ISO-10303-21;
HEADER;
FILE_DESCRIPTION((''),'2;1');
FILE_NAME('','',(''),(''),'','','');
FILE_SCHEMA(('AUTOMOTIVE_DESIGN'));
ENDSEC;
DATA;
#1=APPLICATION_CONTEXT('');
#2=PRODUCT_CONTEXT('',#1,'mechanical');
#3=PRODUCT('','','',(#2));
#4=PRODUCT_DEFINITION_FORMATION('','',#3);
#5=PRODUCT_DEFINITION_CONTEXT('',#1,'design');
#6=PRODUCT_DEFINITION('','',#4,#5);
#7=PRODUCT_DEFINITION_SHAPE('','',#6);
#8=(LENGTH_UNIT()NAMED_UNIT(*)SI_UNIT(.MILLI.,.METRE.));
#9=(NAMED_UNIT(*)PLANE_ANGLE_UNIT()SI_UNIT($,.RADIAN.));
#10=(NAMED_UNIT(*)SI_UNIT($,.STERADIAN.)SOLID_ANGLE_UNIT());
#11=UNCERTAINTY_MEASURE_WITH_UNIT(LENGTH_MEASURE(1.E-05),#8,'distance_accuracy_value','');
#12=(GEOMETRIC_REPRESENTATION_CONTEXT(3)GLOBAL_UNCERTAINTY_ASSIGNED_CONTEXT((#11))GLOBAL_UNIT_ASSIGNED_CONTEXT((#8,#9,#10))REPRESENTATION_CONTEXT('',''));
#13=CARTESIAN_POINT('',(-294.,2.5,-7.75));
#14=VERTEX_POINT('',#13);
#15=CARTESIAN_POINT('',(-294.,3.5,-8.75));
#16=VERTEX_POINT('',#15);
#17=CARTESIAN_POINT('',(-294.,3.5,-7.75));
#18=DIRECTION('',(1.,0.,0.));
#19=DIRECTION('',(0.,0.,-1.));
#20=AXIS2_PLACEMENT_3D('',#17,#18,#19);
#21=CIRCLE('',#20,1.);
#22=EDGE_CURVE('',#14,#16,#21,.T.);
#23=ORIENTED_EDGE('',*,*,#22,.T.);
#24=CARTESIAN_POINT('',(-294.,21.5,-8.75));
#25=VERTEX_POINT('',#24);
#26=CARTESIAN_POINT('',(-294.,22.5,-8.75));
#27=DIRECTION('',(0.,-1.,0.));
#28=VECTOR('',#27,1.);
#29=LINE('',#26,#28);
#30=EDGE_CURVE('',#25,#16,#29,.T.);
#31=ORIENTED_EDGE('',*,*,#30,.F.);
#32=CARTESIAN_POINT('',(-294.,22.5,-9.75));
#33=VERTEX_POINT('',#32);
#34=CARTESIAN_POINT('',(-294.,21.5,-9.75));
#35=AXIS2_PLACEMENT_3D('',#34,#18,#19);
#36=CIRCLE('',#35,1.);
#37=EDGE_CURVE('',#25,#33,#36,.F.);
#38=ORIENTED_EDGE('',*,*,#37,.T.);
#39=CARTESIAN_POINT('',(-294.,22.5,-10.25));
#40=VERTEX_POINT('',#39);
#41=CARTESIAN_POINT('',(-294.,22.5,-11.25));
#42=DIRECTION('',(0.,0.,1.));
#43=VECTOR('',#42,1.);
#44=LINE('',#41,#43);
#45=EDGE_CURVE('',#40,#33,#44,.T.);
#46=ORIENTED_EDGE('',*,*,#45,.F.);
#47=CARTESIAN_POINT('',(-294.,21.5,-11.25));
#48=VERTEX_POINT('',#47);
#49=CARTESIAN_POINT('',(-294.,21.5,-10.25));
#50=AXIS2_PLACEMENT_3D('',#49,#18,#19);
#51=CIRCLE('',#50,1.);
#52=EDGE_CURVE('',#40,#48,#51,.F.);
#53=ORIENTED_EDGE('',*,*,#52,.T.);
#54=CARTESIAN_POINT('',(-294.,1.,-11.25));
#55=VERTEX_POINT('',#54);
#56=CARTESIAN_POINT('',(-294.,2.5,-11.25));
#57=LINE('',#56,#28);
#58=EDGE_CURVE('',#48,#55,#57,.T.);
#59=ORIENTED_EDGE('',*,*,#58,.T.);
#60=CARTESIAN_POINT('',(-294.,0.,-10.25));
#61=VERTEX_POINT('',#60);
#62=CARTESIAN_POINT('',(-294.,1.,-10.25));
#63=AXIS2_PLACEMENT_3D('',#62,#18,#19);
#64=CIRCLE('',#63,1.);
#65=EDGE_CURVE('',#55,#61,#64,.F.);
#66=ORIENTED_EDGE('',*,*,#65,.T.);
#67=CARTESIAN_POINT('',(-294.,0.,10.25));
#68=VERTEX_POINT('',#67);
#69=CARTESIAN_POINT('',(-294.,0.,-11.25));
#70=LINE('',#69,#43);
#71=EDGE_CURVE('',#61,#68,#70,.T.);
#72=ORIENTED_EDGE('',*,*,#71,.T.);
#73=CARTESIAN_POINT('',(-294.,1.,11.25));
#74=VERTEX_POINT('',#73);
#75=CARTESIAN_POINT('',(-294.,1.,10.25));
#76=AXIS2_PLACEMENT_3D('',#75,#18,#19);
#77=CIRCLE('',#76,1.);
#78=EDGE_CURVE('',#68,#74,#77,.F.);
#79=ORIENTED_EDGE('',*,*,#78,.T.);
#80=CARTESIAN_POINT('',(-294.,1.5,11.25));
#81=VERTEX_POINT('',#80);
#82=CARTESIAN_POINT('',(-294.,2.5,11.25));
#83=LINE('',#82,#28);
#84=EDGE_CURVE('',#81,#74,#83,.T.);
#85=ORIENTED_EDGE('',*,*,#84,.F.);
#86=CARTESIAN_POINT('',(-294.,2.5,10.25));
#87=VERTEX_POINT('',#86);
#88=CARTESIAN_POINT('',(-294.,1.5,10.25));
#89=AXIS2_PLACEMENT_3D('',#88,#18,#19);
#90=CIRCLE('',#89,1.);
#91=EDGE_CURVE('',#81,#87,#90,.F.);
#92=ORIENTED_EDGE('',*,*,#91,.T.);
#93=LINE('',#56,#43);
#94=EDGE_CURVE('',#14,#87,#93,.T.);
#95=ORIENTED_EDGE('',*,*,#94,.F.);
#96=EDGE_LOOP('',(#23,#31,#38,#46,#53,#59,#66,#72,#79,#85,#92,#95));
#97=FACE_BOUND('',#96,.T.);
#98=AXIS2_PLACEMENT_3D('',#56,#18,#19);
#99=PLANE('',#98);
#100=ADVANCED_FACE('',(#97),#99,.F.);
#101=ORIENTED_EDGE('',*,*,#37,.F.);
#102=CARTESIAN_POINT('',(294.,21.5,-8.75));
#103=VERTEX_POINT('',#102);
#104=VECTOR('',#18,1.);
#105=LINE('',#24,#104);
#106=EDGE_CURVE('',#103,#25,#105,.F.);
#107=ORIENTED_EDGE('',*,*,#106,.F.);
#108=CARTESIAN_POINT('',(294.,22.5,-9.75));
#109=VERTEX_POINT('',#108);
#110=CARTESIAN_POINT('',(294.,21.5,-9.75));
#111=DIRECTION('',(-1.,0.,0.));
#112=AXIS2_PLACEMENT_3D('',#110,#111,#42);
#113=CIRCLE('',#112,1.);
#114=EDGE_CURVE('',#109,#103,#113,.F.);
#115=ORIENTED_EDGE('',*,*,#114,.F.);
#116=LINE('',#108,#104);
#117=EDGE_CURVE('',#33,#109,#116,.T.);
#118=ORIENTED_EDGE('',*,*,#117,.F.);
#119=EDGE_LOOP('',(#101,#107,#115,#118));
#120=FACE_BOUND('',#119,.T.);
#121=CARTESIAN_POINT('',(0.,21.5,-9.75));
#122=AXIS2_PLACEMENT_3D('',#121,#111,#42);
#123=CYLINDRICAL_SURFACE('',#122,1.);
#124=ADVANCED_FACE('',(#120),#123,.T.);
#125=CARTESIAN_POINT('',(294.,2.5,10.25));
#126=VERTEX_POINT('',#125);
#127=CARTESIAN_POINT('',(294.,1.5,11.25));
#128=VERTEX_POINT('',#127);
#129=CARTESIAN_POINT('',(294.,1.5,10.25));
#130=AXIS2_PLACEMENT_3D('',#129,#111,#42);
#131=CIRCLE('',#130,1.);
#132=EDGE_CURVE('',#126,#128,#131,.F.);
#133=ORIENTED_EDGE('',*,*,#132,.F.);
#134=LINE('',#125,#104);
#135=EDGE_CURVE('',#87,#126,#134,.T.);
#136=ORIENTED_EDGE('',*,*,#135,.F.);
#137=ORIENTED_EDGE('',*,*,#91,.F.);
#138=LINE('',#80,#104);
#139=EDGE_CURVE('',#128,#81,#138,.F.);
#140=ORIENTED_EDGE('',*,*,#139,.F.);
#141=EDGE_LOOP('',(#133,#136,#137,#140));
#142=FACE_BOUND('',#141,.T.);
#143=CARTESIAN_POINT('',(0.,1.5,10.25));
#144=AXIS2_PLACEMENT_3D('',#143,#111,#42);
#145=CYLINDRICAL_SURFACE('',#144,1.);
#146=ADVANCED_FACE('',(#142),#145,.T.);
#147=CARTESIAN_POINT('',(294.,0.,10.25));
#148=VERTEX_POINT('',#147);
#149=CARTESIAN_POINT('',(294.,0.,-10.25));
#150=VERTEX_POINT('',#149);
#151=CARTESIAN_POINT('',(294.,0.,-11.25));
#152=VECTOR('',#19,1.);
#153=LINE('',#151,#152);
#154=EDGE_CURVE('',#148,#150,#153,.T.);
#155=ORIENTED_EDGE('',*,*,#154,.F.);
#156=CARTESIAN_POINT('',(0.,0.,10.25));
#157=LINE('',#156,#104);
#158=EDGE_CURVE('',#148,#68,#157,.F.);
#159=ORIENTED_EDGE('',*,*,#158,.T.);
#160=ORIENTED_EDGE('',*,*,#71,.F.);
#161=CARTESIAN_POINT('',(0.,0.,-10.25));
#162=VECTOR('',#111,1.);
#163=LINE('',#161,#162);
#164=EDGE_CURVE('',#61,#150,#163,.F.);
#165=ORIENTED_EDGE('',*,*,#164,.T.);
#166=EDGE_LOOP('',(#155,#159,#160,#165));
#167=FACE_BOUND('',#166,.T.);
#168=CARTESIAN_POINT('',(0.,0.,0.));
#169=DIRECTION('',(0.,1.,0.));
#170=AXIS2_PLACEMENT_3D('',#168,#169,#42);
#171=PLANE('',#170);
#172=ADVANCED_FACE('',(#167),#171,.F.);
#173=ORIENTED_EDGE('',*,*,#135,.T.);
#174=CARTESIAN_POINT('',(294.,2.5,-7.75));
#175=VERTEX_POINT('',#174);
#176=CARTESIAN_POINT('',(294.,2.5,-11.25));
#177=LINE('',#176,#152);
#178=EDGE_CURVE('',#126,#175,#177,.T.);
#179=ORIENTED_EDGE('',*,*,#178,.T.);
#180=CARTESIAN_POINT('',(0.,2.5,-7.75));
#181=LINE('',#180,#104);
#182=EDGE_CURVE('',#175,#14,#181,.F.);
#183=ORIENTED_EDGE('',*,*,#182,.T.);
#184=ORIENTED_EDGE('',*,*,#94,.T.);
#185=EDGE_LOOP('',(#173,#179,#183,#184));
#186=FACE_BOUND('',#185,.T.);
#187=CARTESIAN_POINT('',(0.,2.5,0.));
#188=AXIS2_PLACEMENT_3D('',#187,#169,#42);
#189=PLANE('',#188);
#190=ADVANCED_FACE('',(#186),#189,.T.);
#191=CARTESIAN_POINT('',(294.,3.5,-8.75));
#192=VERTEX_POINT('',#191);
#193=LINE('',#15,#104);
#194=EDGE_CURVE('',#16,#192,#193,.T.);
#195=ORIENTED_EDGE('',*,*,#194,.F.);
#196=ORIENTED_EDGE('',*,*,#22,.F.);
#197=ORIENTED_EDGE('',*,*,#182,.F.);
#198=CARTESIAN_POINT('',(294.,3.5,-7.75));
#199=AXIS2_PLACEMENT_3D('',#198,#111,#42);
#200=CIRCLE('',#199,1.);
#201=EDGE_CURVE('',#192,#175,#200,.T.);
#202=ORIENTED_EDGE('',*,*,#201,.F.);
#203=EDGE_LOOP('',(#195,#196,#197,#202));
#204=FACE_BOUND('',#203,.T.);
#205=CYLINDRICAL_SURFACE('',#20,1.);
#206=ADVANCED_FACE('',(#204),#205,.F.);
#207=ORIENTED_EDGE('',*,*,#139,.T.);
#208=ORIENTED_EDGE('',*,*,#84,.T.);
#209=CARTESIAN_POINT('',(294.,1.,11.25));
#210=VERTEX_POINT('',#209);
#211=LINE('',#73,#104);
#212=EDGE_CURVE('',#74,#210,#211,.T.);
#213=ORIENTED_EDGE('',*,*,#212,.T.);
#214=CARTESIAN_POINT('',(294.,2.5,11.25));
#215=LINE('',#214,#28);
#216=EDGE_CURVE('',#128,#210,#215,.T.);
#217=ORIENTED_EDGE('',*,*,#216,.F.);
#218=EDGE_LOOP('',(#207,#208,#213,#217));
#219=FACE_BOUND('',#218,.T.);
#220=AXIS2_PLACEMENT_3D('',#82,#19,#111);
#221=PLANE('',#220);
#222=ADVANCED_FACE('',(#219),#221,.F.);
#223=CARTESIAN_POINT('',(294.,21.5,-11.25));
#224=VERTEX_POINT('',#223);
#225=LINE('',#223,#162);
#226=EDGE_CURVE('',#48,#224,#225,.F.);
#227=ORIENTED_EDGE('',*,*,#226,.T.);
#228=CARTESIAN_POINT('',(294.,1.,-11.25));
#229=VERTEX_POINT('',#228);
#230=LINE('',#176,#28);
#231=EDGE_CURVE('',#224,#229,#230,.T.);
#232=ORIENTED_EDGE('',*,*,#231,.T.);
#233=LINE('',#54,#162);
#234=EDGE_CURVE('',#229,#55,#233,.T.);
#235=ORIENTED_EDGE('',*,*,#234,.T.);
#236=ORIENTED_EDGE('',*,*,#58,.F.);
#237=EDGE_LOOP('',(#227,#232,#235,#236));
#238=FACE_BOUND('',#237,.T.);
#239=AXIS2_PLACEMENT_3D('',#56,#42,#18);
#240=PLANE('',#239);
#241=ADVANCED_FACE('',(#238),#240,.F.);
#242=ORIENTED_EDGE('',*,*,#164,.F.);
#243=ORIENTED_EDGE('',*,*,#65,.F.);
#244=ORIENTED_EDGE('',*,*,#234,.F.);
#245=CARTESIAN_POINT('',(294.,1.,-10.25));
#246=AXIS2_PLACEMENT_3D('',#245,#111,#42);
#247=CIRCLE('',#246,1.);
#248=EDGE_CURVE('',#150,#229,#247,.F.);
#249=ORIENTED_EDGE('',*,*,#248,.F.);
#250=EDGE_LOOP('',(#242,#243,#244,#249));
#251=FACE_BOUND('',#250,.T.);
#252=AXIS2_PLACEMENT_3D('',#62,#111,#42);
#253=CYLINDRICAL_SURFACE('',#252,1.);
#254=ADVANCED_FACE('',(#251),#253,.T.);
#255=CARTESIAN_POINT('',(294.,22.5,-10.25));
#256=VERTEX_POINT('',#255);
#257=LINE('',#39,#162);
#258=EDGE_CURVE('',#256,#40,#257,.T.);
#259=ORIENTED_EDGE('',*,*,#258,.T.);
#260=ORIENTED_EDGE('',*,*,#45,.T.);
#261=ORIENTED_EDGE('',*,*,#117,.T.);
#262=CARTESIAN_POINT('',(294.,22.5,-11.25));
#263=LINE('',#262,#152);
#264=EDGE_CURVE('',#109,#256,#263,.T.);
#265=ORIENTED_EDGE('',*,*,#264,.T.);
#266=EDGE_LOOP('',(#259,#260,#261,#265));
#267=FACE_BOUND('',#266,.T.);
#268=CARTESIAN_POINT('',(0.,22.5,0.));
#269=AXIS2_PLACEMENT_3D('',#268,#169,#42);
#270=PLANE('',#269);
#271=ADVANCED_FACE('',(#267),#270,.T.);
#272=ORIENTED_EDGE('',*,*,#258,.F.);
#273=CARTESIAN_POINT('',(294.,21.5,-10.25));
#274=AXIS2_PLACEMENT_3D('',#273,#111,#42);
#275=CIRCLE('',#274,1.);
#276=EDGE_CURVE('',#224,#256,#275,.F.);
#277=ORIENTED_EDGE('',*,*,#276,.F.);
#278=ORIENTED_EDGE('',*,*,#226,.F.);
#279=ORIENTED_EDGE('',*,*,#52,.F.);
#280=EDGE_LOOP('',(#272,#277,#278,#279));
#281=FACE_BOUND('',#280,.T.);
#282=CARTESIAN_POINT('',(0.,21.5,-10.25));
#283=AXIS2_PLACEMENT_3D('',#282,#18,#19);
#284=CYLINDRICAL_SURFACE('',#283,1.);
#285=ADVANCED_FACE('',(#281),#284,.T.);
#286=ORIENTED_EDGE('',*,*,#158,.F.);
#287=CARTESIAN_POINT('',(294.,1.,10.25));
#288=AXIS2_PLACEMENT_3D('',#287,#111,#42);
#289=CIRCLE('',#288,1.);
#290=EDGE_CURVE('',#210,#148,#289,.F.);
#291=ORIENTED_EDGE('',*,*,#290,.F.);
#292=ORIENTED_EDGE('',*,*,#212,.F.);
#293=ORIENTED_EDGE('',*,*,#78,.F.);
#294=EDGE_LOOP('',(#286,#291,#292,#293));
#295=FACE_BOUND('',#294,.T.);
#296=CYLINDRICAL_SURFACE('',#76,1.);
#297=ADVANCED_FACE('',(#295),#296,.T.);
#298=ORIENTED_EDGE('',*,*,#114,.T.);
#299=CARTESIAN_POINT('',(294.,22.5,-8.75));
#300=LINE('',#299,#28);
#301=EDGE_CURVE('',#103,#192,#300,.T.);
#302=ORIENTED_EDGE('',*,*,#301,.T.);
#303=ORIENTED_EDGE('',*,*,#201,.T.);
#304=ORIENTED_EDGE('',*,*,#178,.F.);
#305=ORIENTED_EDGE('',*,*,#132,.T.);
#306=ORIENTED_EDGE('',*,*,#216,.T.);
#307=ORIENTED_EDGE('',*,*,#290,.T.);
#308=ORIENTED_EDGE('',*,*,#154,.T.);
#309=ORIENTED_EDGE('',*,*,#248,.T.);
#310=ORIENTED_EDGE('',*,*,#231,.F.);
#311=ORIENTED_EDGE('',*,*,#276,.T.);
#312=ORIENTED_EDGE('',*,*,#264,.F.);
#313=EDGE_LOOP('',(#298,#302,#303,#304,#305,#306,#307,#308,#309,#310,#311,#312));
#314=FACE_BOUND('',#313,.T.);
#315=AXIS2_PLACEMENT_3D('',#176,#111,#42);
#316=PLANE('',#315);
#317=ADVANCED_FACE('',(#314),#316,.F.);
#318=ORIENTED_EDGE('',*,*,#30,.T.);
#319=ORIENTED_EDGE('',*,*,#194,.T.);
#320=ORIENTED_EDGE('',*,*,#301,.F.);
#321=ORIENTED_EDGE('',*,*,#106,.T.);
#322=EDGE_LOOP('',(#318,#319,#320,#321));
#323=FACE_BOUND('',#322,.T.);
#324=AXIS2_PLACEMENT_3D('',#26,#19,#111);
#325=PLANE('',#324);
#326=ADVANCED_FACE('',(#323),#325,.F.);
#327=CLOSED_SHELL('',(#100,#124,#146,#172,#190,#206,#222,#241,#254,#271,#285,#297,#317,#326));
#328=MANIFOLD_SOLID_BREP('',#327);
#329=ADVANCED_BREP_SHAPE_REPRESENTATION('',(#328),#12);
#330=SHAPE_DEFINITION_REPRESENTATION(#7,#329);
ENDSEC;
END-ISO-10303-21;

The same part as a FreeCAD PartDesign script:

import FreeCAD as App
import Part
import Sketcher
Q = App.Units.Quantity


def edges_at(feature, points):
    """Names of the edges that pass closest to the given points."""
    edges = feature.Shape.Edges
    near = lambda p: min(range(len(edges)), key=lambda i: edges[i].distToShape(Part.Vertex(*p))[0])
    return sorted({f"Edge{near(p) + 1}" for p in points})

doc = App.newDocument("Part")
body = doc.addObject("PartDesign::Body", "Body")

sketch1 = body.newObject("Sketcher::SketchObject", "Sketch")
sketch1.AttachmentSupport = (doc.getObject("XZ_Plane"), [""])
sketch1.MapMode = "FlatFace"
sketch1.addGeometry(Part.LineSegment(App.Vector(-294, -11, 0), App.Vector(-294, 11, 0)), False)
sketch1.addGeometry(Part.LineSegment(App.Vector(-294, 11, 0), App.Vector(294, 11, 0)), False)
sketch1.addGeometry(Part.LineSegment(App.Vector(294, 11, 0), App.Vector(294, -11, 0)), False)
sketch1.addGeometry(Part.LineSegment(App.Vector(294, -11, 0), App.Vector(-294, -11, 0)), False)
sketch1.addConstraint(Sketcher.Constraint("Coincident", 0, 2, 1, 1))
sketch1.addConstraint(Sketcher.Constraint("Coincident", 1, 2, 2, 1))
sketch1.addConstraint(Sketcher.Constraint("Coincident", 2, 2, 3, 1))
sketch1.addConstraint(Sketcher.Constraint("Coincident", 3, 2, 0, 1))
sketch1.addConstraint(Sketcher.Constraint("Vertical", 0))
sketch1.addConstraint(Sketcher.Constraint("Horizontal", 1))
sketch1.addConstraint(Sketcher.Constraint("Vertical", 2))
sketch1.addConstraint(Sketcher.Constraint("Horizontal", 3))
sketch1.addConstraint(Sketcher.Constraint("Symmetric", 0, 2, 2, 2, -1, 1))
sketch1.addConstraint(Sketcher.Constraint("DistanceX", 1, 1, 1, 2, Q("588 mm")))
sketch1.addConstraint(Sketcher.Constraint("DistanceY", 0, 1, 0, 2, Q("22.5 mm")))
pad1 = body.newObject("PartDesign::Pad", "Pad")
pad1.Profile = sketch1
pad1.Length = 2.5
pad1.Reversed = True

sketch2 = body.newObject("Sketcher::SketchObject", "Sketch001")
sketch2.AttachmentSupport = (doc.getObject("XZ_Plane"), [""])
sketch2.MapMode = "FlatFace"
sketch2.AttachmentOffset = App.Placement(App.Vector(0, 0, -2.5), App.Rotation())
sketch2.addGeometry(Part.LineSegment(App.Vector(-294, -11.2, 0), App.Vector(-294, -8.8, 0)), False)
sketch2.addGeometry(Part.LineSegment(App.Vector(-294, -8.8, 0), App.Vector(294, -8.8, 0)), False)
sketch2.addGeometry(Part.LineSegment(App.Vector(294, -8.8, 0), App.Vector(294, -11.2, 0)), False)
sketch2.addGeometry(Part.LineSegment(App.Vector(294, -11.2, 0), App.Vector(-294, -11.2, 0)), False)
sketch2.addConstraint(Sketcher.Constraint("Coincident", 0, 2, 1, 1))
sketch2.addConstraint(Sketcher.Constraint("Coincident", 1, 2, 2, 1))
sketch2.addConstraint(Sketcher.Constraint("Coincident", 2, 2, 3, 1))
sketch2.addConstraint(Sketcher.Constraint("Coincident", 3, 2, 0, 1))
sketch2.addConstraint(Sketcher.Constraint("Vertical", 0))
sketch2.addConstraint(Sketcher.Constraint("Horizontal", 1))
sketch2.addConstraint(Sketcher.Constraint("Vertical", 2))
sketch2.addConstraint(Sketcher.Constraint("Horizontal", 3))
sketch2.addConstraint(Sketcher.Constraint("DistanceX", 1, 1, 1, 2, Q("588 mm")))
sketch2.addConstraint(Sketcher.Constraint("DistanceY", 0, 1, 0, 2, Q("2.5 mm")))
sketch2.addConstraint(Sketcher.Constraint("DistanceX", 0, 2, -1, 1, Q("294 mm")))
sketch2.addConstraint(Sketcher.Constraint("DistanceY", 0, 2, -1, 1, Q("8.75 mm")))
pad2 = body.newObject("PartDesign::Pad", "Pad001")
pad2.Profile = sketch2
pad2.Length = 20
pad2.Reversed = True
doc.recompute()

fillet = body.newObject("PartDesign::Fillet", "Fillet")
fillet.Base = (pad2, edges_at(pad2, [
    (0, 2.5, 11.25),
    (0, 2.5, -8.75),
    (0, 22.5, -8.75),
    (0, 22.5, -11.25),
    (0, 0, 11.25),
    (0, 0, -11.25),
]))
fillet.Radius = 1

doc.recompute()
